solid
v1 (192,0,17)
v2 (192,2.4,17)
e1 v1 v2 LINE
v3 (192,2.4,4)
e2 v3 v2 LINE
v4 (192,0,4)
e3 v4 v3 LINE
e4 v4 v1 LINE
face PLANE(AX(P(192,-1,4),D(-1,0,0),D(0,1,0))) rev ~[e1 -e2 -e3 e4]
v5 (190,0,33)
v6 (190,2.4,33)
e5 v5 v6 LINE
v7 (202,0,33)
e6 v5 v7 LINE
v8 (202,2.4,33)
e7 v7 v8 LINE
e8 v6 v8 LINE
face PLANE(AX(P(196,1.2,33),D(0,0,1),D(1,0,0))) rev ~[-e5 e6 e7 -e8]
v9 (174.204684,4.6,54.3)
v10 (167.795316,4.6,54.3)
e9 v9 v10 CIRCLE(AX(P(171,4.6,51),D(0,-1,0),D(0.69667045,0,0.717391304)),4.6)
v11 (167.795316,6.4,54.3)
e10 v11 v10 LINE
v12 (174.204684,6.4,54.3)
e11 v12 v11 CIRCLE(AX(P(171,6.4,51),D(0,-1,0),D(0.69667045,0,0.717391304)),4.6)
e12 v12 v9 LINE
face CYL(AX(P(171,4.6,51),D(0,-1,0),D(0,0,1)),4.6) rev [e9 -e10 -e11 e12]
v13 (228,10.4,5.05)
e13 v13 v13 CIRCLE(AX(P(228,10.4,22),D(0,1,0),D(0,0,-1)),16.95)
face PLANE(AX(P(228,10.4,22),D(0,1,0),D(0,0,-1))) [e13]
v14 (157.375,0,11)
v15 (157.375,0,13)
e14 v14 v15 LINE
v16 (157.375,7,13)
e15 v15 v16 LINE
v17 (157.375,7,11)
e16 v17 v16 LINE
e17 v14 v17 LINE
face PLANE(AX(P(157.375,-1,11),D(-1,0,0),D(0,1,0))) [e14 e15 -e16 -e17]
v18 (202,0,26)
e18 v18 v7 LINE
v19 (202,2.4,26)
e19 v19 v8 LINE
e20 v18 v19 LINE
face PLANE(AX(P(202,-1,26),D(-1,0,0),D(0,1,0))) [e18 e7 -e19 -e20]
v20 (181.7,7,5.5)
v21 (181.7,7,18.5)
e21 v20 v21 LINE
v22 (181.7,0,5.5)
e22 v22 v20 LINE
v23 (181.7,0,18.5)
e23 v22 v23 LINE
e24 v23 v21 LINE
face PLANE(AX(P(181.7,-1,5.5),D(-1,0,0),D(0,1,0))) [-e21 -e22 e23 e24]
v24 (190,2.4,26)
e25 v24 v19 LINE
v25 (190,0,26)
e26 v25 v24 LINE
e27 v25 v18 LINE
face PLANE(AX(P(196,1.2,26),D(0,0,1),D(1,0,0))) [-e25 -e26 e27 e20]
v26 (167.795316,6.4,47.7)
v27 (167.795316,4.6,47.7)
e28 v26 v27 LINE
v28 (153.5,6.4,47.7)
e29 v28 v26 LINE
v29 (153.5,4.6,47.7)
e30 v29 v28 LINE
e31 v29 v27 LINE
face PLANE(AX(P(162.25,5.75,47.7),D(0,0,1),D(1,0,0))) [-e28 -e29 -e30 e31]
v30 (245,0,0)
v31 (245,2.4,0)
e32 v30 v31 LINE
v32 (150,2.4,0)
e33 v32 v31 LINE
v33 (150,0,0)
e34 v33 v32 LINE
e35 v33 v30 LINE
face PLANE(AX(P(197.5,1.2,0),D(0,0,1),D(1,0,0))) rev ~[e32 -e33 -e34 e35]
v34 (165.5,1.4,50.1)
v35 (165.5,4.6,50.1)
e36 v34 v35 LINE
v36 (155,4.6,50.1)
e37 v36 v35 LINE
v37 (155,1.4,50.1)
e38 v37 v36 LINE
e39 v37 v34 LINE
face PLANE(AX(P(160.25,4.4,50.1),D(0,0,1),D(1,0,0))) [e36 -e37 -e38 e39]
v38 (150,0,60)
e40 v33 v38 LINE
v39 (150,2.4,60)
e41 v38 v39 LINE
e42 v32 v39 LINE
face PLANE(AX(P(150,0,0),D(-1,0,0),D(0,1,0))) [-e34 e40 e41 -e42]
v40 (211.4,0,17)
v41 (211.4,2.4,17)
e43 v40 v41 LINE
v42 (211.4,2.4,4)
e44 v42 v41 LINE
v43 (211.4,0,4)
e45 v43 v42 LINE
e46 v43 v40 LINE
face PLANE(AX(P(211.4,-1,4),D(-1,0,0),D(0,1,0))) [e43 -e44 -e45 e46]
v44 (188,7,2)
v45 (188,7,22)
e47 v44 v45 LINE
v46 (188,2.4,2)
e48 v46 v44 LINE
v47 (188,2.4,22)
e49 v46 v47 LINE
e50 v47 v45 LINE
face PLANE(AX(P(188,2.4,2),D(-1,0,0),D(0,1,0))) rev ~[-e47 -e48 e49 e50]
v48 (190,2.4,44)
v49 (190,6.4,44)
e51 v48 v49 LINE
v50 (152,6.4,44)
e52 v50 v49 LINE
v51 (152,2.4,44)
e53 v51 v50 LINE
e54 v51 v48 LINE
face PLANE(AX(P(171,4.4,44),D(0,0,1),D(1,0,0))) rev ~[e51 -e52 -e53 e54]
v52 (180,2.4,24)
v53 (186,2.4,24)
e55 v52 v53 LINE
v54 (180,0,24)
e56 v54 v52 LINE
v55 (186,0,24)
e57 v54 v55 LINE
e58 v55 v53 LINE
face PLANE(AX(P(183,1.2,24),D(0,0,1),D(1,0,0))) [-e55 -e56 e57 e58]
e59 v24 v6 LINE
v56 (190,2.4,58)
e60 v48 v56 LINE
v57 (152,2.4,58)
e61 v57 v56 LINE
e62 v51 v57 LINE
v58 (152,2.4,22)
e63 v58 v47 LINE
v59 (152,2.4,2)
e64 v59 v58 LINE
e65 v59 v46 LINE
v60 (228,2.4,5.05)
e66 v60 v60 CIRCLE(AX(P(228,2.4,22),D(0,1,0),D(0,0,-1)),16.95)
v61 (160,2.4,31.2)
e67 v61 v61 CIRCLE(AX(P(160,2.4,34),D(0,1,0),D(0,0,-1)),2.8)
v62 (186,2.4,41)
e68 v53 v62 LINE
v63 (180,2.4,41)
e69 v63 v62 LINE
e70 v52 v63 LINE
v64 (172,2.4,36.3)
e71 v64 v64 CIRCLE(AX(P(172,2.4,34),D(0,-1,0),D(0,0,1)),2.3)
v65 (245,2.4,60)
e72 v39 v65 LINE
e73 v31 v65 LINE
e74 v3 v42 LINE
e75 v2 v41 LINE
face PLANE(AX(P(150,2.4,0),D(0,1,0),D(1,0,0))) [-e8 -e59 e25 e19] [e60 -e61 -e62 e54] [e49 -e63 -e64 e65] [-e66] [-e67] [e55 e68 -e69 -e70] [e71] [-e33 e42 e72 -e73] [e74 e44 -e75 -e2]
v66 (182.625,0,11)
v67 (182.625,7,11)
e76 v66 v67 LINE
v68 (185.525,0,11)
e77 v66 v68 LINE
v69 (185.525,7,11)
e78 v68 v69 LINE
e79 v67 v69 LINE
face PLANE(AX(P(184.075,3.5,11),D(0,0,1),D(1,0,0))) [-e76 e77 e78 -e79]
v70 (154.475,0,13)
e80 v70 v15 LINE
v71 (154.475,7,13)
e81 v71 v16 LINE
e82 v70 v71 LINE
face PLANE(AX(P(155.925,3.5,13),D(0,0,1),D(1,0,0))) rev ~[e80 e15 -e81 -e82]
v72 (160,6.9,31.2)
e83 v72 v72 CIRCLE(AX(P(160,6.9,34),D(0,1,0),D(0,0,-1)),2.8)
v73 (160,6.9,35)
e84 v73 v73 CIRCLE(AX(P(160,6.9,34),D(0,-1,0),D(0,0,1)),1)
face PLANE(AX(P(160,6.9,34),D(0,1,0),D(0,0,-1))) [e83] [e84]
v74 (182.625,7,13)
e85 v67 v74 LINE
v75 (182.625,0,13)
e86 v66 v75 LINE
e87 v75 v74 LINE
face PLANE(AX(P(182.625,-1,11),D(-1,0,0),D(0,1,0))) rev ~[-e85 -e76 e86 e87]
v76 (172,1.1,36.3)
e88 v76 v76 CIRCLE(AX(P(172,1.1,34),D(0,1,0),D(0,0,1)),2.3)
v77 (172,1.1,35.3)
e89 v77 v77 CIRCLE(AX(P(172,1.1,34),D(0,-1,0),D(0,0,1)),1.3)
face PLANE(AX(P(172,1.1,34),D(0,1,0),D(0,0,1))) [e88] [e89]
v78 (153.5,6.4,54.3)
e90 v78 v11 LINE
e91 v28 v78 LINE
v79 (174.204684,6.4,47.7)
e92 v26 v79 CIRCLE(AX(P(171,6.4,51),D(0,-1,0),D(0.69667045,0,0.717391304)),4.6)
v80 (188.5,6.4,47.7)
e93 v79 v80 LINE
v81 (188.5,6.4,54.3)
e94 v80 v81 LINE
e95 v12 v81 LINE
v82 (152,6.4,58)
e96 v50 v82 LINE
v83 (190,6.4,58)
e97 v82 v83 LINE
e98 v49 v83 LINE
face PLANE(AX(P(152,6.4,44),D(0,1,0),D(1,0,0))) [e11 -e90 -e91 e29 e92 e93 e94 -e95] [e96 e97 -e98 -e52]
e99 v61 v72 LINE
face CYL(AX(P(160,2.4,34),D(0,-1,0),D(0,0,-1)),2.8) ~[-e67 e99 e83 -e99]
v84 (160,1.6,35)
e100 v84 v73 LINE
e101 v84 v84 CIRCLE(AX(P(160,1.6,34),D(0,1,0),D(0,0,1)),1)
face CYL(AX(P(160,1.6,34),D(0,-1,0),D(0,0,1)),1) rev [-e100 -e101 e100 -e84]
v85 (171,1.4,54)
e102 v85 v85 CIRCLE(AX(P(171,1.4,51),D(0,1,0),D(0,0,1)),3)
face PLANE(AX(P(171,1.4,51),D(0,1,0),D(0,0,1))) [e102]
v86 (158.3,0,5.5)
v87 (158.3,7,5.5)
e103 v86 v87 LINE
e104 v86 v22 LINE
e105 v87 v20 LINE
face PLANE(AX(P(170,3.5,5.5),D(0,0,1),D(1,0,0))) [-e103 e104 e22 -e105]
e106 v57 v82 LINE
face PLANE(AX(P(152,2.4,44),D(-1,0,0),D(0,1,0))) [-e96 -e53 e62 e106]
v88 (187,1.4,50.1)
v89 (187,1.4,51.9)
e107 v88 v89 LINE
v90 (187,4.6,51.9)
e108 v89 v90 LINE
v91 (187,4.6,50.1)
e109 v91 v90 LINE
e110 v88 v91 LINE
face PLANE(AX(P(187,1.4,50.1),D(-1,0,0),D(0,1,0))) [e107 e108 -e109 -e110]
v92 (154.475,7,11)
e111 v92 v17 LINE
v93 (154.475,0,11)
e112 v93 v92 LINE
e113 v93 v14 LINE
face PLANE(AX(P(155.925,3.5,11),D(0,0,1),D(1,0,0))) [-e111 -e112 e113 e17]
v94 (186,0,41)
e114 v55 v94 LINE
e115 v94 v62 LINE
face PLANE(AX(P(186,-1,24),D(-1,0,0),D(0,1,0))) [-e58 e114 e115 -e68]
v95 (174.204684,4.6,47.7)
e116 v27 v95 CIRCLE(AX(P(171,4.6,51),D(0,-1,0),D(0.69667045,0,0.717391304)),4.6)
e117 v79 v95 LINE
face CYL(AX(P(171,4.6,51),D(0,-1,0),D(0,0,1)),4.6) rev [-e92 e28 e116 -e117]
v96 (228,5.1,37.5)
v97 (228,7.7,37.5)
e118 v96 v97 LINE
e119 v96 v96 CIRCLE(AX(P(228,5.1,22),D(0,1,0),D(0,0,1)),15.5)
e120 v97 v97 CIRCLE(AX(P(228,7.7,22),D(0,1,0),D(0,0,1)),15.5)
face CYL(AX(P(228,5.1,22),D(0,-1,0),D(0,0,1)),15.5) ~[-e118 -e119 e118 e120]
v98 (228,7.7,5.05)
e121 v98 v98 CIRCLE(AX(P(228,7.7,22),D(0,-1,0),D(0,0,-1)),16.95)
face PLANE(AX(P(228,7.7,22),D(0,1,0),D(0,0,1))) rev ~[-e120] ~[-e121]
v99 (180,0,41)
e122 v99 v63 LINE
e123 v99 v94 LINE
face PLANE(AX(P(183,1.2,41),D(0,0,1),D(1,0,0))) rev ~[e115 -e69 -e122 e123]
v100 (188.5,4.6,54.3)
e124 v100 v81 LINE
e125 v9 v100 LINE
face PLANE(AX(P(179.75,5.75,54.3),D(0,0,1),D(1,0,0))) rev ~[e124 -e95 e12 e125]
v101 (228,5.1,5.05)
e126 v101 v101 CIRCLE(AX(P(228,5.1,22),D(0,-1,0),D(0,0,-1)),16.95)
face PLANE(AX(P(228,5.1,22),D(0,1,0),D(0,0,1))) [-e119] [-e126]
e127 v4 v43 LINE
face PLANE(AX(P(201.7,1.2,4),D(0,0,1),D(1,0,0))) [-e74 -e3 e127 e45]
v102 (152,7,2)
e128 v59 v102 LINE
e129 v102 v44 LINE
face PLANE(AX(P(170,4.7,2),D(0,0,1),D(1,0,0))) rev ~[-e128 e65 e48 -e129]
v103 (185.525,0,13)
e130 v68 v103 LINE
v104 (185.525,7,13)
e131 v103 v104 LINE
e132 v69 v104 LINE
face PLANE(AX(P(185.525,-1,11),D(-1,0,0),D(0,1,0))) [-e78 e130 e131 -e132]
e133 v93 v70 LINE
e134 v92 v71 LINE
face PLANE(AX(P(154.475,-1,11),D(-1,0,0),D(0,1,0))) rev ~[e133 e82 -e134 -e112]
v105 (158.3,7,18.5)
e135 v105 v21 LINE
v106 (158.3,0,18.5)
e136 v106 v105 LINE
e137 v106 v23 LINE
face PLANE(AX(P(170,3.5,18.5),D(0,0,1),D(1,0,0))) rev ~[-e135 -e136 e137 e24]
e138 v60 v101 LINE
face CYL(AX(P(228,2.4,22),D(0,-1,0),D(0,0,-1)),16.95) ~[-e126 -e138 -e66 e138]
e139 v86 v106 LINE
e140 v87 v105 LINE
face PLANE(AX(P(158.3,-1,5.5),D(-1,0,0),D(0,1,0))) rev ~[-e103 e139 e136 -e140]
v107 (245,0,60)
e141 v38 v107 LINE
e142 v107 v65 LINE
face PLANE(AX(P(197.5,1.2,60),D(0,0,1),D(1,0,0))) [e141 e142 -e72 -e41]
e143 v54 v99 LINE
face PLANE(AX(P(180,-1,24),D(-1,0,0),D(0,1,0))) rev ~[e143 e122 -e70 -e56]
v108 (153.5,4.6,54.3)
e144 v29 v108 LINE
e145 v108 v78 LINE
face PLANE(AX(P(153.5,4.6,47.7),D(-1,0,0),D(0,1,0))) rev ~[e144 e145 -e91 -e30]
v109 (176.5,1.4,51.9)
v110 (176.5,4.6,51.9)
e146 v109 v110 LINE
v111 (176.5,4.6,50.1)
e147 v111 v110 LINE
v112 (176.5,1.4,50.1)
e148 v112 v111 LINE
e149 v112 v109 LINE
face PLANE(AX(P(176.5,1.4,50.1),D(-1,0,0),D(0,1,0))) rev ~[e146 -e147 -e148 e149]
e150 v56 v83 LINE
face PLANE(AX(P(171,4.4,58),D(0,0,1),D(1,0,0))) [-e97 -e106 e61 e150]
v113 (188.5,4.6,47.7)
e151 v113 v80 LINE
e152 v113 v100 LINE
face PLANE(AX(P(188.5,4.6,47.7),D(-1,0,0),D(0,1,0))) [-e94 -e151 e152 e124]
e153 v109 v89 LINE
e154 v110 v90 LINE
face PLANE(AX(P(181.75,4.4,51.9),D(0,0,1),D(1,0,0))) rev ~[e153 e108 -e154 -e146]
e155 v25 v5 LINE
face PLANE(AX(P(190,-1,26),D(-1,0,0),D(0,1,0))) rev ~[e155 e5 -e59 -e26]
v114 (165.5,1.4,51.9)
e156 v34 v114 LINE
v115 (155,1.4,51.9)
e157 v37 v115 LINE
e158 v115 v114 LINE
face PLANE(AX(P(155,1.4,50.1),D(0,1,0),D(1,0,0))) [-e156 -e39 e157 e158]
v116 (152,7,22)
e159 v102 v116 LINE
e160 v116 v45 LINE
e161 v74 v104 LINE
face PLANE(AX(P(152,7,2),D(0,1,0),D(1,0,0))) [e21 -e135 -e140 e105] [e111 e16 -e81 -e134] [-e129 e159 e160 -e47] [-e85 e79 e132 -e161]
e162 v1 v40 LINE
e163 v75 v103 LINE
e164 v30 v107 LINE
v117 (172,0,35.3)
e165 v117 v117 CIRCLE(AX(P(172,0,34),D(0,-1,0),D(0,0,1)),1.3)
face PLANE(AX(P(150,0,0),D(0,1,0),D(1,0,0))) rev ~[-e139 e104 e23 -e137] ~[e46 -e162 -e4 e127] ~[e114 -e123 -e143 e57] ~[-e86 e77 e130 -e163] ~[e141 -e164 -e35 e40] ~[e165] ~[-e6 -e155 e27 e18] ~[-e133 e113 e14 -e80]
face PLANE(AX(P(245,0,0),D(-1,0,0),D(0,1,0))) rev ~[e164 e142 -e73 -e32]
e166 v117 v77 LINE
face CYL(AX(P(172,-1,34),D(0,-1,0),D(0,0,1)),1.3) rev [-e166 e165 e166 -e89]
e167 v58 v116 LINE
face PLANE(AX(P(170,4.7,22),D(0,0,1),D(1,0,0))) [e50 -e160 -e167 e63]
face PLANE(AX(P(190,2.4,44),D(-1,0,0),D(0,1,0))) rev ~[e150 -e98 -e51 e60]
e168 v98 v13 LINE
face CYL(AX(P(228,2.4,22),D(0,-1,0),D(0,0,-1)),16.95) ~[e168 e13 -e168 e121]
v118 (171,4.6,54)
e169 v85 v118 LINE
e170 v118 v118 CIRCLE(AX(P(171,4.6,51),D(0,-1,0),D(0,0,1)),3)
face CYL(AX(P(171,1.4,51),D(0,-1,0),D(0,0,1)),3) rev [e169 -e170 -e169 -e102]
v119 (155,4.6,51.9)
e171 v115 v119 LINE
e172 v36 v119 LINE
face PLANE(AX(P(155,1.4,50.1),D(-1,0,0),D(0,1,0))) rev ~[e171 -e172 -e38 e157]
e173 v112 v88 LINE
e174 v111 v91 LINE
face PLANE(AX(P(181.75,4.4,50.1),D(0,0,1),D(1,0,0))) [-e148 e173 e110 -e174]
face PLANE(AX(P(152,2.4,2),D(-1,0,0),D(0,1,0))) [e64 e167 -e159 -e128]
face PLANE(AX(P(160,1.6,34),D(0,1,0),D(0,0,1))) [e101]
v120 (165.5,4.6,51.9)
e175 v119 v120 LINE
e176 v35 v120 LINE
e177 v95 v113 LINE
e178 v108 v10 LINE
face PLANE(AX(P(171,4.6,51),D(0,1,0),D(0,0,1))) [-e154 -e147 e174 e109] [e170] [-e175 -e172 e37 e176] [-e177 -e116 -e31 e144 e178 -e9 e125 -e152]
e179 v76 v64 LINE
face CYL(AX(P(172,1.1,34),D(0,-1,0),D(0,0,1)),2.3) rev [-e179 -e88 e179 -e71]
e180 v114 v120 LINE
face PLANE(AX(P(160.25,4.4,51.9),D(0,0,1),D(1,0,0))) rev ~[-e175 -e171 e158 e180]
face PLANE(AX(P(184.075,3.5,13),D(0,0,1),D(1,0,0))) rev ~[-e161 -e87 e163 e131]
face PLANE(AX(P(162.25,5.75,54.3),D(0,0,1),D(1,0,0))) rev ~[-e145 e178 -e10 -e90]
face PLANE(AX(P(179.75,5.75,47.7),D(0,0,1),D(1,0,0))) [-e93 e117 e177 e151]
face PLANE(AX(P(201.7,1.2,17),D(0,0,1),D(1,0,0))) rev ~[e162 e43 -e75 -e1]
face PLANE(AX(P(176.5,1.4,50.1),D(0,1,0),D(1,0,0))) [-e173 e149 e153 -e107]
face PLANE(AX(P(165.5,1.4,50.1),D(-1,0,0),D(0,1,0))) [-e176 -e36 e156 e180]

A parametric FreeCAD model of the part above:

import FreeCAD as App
import Part
import Sketcher


def add_polygon(sketch, points):
    """Adds a closed chain of lines whose ends are joined by coincident constraints."""
    first, n = sketch.GeometryCount, len(points)
    for a, b in zip(points, points[1:] + points[:1]):
        sketch.addGeometry(Part.LineSegment(App.Vector(*a, 0), App.Vector(*b, 0)), False)
    for i in range(n):
        sketch.addConstraint(Sketcher.Constraint("Coincident", first + i, 2, first + (i + 1) % n, 1))

doc = App.newDocument("Part")
body = doc.addObject("PartDesign::Body", "Body")

sketch1 = doc.addObject("Sketcher::SketchObject", "Sketch")
body.addObject(sketch1)
sketch1.AttachmentSupport = (doc.XY_Plane, [""])
sketch1.MapMode = "FlatFace"
add_polygon(sketch1, [(150, 2.4), (150, 0), (245, 0), (245, 2.4)])
sketch1.addConstraint(Sketcher.Constraint("Vertical", 0))
sketch1.addConstraint(Sketcher.Constraint("Horizontal", 1))
sketch1.addConstraint(Sketcher.Constraint("Vertical", 2))
sketch1.addConstraint(Sketcher.Constraint("Horizontal", 3))
sketch1.addConstraint(Sketcher.Constraint("PointOnObject", 0, 2, -1))
sketch1.addConstraint(Sketcher.Constraint("DistanceX", 1, 1, 1, 2, 95.0))
sketch1.addConstraint(Sketcher.Constraint("DistanceY", 0, 2, 0, 1, 2.4))
sketch1.addConstraint(Sketcher.Constraint("DistanceX", -1, 1, 0, 2, 150.0))
pad1 = doc.addObject("PartDesign::Pad", "Pad")
body.addObject(pad1)
pad1.Profile = sketch1
pad1.Length = 60

sketch2 = doc.addObject("Sketcher::SketchObject", "Sketch001")
body.addObject(sketch2)
sketch2.AttachmentSupport = (doc.XY_Plane, [""])
sketch2.MapMode = "FlatFace"
sketch2.AttachmentOffset = App.Placement(App.Vector(0, 0, 2), App.Rotation())
add_polygon(sketch2, [(152, 7), (152, 2.4), (188, 2.4), (188, 7)])
sketch2.addConstraint(Sketcher.Constraint("Vertical", 0))
sketch2.addConstraint(Sketcher.Constraint("Horizontal", 1))
sketch2.addConstraint(Sketcher.Constraint("Vertical", 2))
sketch2.addConstraint(Sketcher.Constraint("Horizontal", 3))
sketch2.addConstraint(Sketcher.Constraint("DistanceX", 1, 1, 1, 2, 36.0))
sketch2.addConstraint(Sketcher.Constraint("DistanceY", 0, 2, 0, 1, 4.6))
sketch2.addConstraint(Sketcher.Constraint("DistanceX", -1, 1, 0, 2, 152.0))
sketch2.addConstraint(Sketcher.Constraint("DistanceY", -1, 1, 2, 2, 7.0))
pad2 = doc.addObject("PartDesign::Pad", "Pad001")
body.addObject(pad2)
pad2.Profile = sketch2
pad2.Length = 20
body2 = doc.addObject("PartDesign::Body", "Body001")

sketch3 = doc.addObject("Sketcher::SketchObject", "Sketch002")
body2.addObject(sketch3)
sketch3.AttachmentSupport = (doc.getObject("XY_Plane001"), [""])
sketch3.MapMode = "FlatFace"
sketch3.AttachmentOffset = App.Placement(App.Vector(0, 0, 5.5), App.Rotation())
add_polygon(sketch3, [(158, 8), (158, -1), (182, -1), (182, 8)])
sketch3.addConstraint(Sketcher.Constraint("Vertical", 0))
sketch3.addConstraint(Sketcher.Constraint("Horizontal", 1))
sketch3.addConstraint(Sketcher.Constraint("Vertical", 2))
sketch3.addConstraint(Sketcher.Constraint("Horizontal", 3))
sketch3.addConstraint(Sketcher.Constraint("DistanceY", 0, 2, 0, 1, 9.0))
sketch3.addConstraint(Sketcher.Constraint("DistanceX", 1, 1, 1, 2, 23.4))
sketch3.addConstraint(Sketcher.Constraint("DistanceY", 0, 2, -1, 1, 1.0))
sketch3.addConstraint(Sketcher.Constraint("DistanceX", -1, 1, 0, 2, 158.3))
pad3 = doc.addObject("PartDesign::Pad", "Pad002")
body2.addObject(pad3)
pad3.Profile = sketch3
pad3.Length = 13
doc.recompute()

boolean = doc.addObject("PartDesign::Boolean", "Boolean")
body.addObject(boolean)
boolean.Type = "Cut"
boolean.addObjects([body2])
body3 = doc.addObject("PartDesign::Body", "Body002")

sketch4 = doc.addObject("Sketcher::SketchObject", "Sketch003")
body3.addObject(sketch4)
sketch4.AttachmentSupport = (doc.getObject("XY_Plane002"), [""])
sketch4.MapMode = "FlatFace"
sketch4.AttachmentOffset = App.Placement(App.Vector(0, 0, 11), App.Rotation())
add_polygon(sketch4, [(154.5, 8), (154.5, -1), (157.4, -1), (157.4, 8)])
sketch4.addConstraint(Sketcher.Constraint("Vertical", 0))
sketch4.addConstraint(Sketcher.Constraint("Horizontal", 1))
sketch4.addConstraint(Sketcher.Constraint("Vertical", 2))
sketch4.addConstraint(Sketcher.Constraint("Horizontal", 3))
sketch4.addConstraint(Sketcher.Constraint("DistanceY", 0, 2, 0, 1, 9.0))
sketch4.addConstraint(Sketcher.Constraint("DistanceX", 1, 1, 1, 2, 2.9))
sketch4.addConstraint(Sketcher.Constraint("DistanceY", 0, 2, -1, 1, 1.0))
sketch4.addConstraint(Sketcher.Constraint("DistanceX", -1, 1, 0, 2, 154.475))
pad4 = doc.addObject("PartDesign::Pad", "Pad003")
body3.addObject(pad4)
pad4.Profile = sketch4
pad4.Length = 2
doc.recompute()

boolean2 = doc.addObject("PartDesign::Boolean", "Boolean001")
body.addObject(boolean2)
boolean2.Type = "Cut"
boolean2.addObjects([body3])
body4 = doc.addObject("PartDesign::Body", "Body003")

sketch5 = doc.addObject("Sketcher::SketchObject", "Sketch004")
body4.addObject(sketch5)
sketch5.AttachmentSupport = (doc.getObject("XY_Plane003"), [""])
sketch5.MapMode = "FlatFace"
sketch5.AttachmentOffset = App.Placement(App.Vector(0, 0, 11), App.Rotation())
add_polygon(sketch5, [(182.6, 8), (182.6, -1), (185.5, -1), (185.5, 8)])
sketch5.addConstraint(Sketcher.Constraint("Vertical", 0))
sketch5.addConstraint(Sketcher.Constraint("Horizontal", 1))
sketch5.addConstraint(Sketcher.Constraint("Vertical", 2))
sketch5.addConstraint(Sketcher.Constraint("Horizontal", 3))
sketch5.addConstraint(Sketcher.Constraint("DistanceY", 0, 2, 0, 1, 9.0))
sketch5.addConstraint(Sketcher.Constraint("DistanceX", 1, 1, 1, 2, 2.9))
sketch5.addConstraint(Sketcher.Constraint("DistanceY", 0, 2, -1, 1, 1.0))
sketch5.addConstraint(Sketcher.Constraint("DistanceX", -1, 1, 0, 2, 182.625))
pad5 = doc.addObject("PartDesign::Pad", "Pad004")
body4.addObject(pad5)
pad5.Profile = sketch5
pad5.Length = 2
doc.recompute()

boolean3 = doc.addObject("PartDesign::Boolean", "Boolean002")
body.addObject(boolean3)
boolean3.Type = "Cut"
boolean3.addObjects([body4])
body5 = doc.addObject("PartDesign::Body", "Body004")

sketch6 = doc.addObject("Sketcher::SketchObject", "Sketch005")
body5.addObject(sketch6)
sketch6.AttachmentSupport = (doc.getObject("XY_Plane004"), [""])
sketch6.MapMode = "FlatFace"
sketch6.AttachmentOffset = App.Placement(App.Vector(0, 0, 4), App.Rotation())
add_polygon(sketch6, [(192, 3.4), (192, -1), (211.4, -1), (211.4, 3.4)])
sketch6.addConstraint(Sketcher.Constraint("Vertical", 0))
sketch6.addConstraint(Sketcher.Constraint("Horizontal", 1))
sketch6.addConstraint(Sketcher.Constraint("Vertical", 2))
sketch6.addConstraint(Sketcher.Constraint("Horizontal", 3))
sketch6.addConstraint(Sketcher.Constraint("DistanceX", 1, 1, 1, 2, 19.4))
sketch6.addConstraint(Sketcher.Constraint("DistanceY", 0, 2, 0, 1, 4.4))
sketch6.addConstraint(Sketcher.Constraint("DistanceX", -1, 1, 0, 2, 192.0))
sketch6.addConstraint(Sketcher.Constraint("DistanceY", 0, 2, -1, 1, 1.0))
pad6 = doc.addObject("PartDesign::Pad", "Pad005")
body5.addObject(pad6)
pad6.Profile = sketch6
pad6.Length = 13
doc.recompute()

boolean4 = doc.addObject("PartDesign::Boolean", "Boolean003")
body.addObject(boolean4)
boolean4.Type = "Cut"
boolean4.addObjects([body5])

sketch7 = doc.addObject("Sketcher::SketchObject", "Sketch006")
body.addObject(sketch7)
sketch7.AttachmentSupport = (doc.XZ_Plane, [""])
sketch7.MapMode = "FlatFace"
sketch7.AttachmentOffset = App.Placement(App.Vector(0, 0, -2.4), App.Rotation())
sketch7.addGeometry(Part.Circle(App.Vector(160, 34, 0), App.Vector(0, 0, 1), 2.8), False)
sketch7.addConstraint(Sketcher.Constraint("Diameter", 0, 5.6))
sketch7.addConstraint(Sketcher.Constraint("DistanceX", -1, 1, 0, 3, 160.0))
sketch7.addConstraint(Sketcher.Constraint("DistanceY", -1, 1, 0, 3, 34.0))
pad7 = doc.addObject("PartDesign::Pad", "Pad006")
body.addObject(pad7)
pad7.Profile = sketch7
pad7.Length = 4.5
pad7.Reversed = True
body6 = doc.addObject("PartDesign::Body", "Body005")

sketch8 = doc.addObject("Sketcher::SketchObject", "Sketch007")
body6.addObject(sketch8)
sketch8.AttachmentSupport = (doc.getObject("XZ_Plane005"), [""])
sketch8.MapMode = "FlatFace"
sketch8.AttachmentOffset = App.Placement(App.Vector(0, 0, -1.6), App.Rotation())
sketch8.addGeometry(Part.Circle(App.Vector(160, 34, 0), App.Vector(0, 0, 1), 1), False)
sketch8.addConstraint(Sketcher.Constraint("Diameter", 0, 2.0))
sketch8.addConstraint(Sketcher.Constraint("DistanceX", -1, 1, 0, 3, 160.0))
sketch8.addConstraint(Sketcher.Constraint("DistanceY", -1, 1, 0, 3, 34.0))
pad8 = doc.addObject("PartDesign::Pad", "Pad007")
body6.addObject(pad8)
pad8.Profile = sketch8
pad8.Length = 6.3
pad8.Reversed = True
doc.recompute()

boolean5 = doc.addObject("PartDesign::Boolean", "Boolean004")
body.addObject(boolean5)
boolean5.Type = "Cut"
boolean5.addObjects([body6])
body7 = doc.addObject("PartDesign::Body", "Body006")

sketch9 = doc.addObject("Sketcher::SketchObject", "Sketch008")
body7.addObject(sketch9)
sketch9.AttachmentSupport = (doc.getObject("XZ_Plane006"), [""])
sketch9.MapMode = "FlatFace"
sketch9.AttachmentOffset = App.Placement(App.Vector(0, 0, 1), App.Rotation())
sketch9.addGeometry(Part.Circle(App.Vector(172, 34, 0), App.Vector(0, 0, 1), 1.3), False)
sketch9.addConstraint(Sketcher.Constraint("Diameter", 0, 2.6))
sketch9.addConstraint(Sketcher.Constraint("DistanceX", -1, 1, 0, 3, 172.0))
sketch9.addConstraint(Sketcher.Constraint("DistanceY", -1, 1, 0, 3, 34.0))
pad9 = doc.addObject("PartDesign::Pad", "Pad008")
body7.addObject(pad9)
pad9.Profile = sketch9
pad9.Length = 4.4
pad9.Reversed = True
doc.recompute()

boolean6 = doc.addObject("PartDesign::Boolean", "Boolean005")
body.addObject(boolean6)
boolean6.Type = "Cut"
boolean6.addObjects([body7])
body8 = doc.addObject("PartDesign::Body", "Body007")

sketch10 = doc.addObject("Sketcher::SketchObject", "Sketch009")
body8.addObject(sketch10)
sketch10.AttachmentSupport = (doc.getObject("XZ_Plane007"), [""])
sketch10.MapMode = "FlatFace"
sketch10.AttachmentOffset = App.Placement(App.Vector(0, 0, -1.1), App.Rotation())
sketch10.addGeometry(Part.Circle(App.Vector(172, 34, 0), App.Vector(0, 0, 1), 2.3), False)
sketch10.addConstraint(Sketcher.Constraint("Diameter", 0, 4.6))
sketch10.addConstraint(Sketcher.Constraint("DistanceX", -1, 1, 0, 3, 172.0))
sketch10.addConstraint(Sketcher.Constraint("DistanceY", -1, 1, 0, 3, 34.0))
pad10 = doc.addObject("PartDesign::Pad", "Pad009")
body8.addObject(pad10)
pad10.Profile = sketch10
pad10.Length = 2.3
pad10.Reversed = True
doc.recompute()

boolean7 = doc.addObject("PartDesign::Boolean", "Boolean006")
body.addObject(boolean7)
boolean7.Type = "Cut"
boolean7.addObjects([body8])
body9 = doc.addObject("PartDesign::Body", "Body008")

sketch11 = doc.addObject("Sketcher::SketchObject", "Sketch010")
body9.addObject(sketch11)
sketch11.AttachmentSupport = (doc.getObject("XY_Plane008"), [""])
sketch11.MapMode = "FlatFace"
sketch11.AttachmentOffset = App.Placement(App.Vector(0, 0, 24), App.Rotation())
add_polygon(sketch11, [(180, 3.4), (180, -1), (186, -1), (186, 3.4)])
sketch11.addConstraint(Sketcher.Constraint("Vertical", 0))
sketch11.addConstraint(Sketcher.Constraint("Horizontal", 1))
sketch11.addConstraint(Sketcher.Constraint("Vertical", 2))
sketch11.addConstraint(Sketcher.Constraint("Horizontal", 3))
sketch11.addConstraint(Sketcher.Constraint("DistanceX", 1, 1, 1, 2, 6.0))
sketch11.addConstraint(Sketcher.Constraint("DistanceY", 0, 2, 0, 1, 4.4))
sketch11.addConstraint(Sketcher.Constraint("DistanceX", -1, 1, 0, 2, 180.0))
sketch11.addConstraint(Sketcher.Constraint("DistanceY", 0, 2, -1, 1, 1.0))
pad11 = doc.addObject("PartDesign::Pad", "Pad010")
body9.addObject(pad11)
pad11.Profile = sketch11
pad11.Length = 17
doc.recompute()

boolean8 = doc.addObject("PartDesign::Boolean", "Boolean007")
body.addObject(boolean8)
boolean8.Type = "Cut"
boolean8.addObjects([body9])
body10 = doc.addObject("PartDesign::Body", "Body009")

sketch12 = doc.addObject("Sketcher::SketchObject", "Sketch011")
body10.addObject(sketch12)
sketch12.AttachmentSupport = (doc.getObject("XY_Plane009"), [""])
sketch12.MapMode = "FlatFace"
sketch12.AttachmentOffset = App.Placement(App.Vector(0, 0, 26), App.Rotation())
add_polygon(sketch12, [(190, 3.4), (190, -1), (202, -1), (202, 3.4)])
sketch12.addConstraint(Sketcher.Constraint("Vertical", 0))
sketch12.addConstraint(Sketcher.Constraint("Horizontal", 1))
sketch12.addConstraint(Sketcher.Constraint("Vertical", 2))
sketch12.addConstraint(Sketcher.Constraint("Horizontal", 3))
sketch12.addConstraint(Sketcher.Constraint("DistanceX", 1, 1, 1, 2, 12.0))
sketch12.addConstraint(Sketcher.Constraint("DistanceY", 0, 2, 0, 1, 4.4))
sketch12.addConstraint(Sketcher.Constraint("DistanceX", -1, 1, 0, 2, 190.0))
sketch12.addConstraint(Sketcher.Constraint("DistanceY", 0, 2, -1, 1, 1.0))
pad12 = doc.addObject("PartDesign::Pad", "Pad011")
body10.addObject(pad12)
pad12.Profile = sketch12
pad12.Length = 7
doc.recompute()

boolean9 = doc.addObject("PartDesign::Boolean", "Boolean008")
body.addObject(boolean9)
boolean9.Type = "Cut"
boolean9.addObjects([body10])

sketch13 = doc.addObject("Sketcher::SketchObject", "Sketch012")
body.addObject(sketch13)
sketch13.AttachmentSupport = (doc.XZ_Plane, [""])
sketch13.MapMode = "FlatFace"
sketch13.AttachmentOffset = App.Placement(App.Vector(0, 0, -2.4), App.Rotation())
sketch13.addGeometry(Part.Circle(App.Vector(228, 22, 0), App.Vector(0, 0, 1), 17), False)
sketch13.addConstraint(Sketcher.Constraint("Diameter", 0, 33.9))
sketch13.addConstraint(Sketcher.Constraint("DistanceX", -1, 1, 0, 3, 228.0))
sketch13.addConstraint(Sketcher.Constraint("DistanceY", -1, 1, 0, 3, 22.0))
pad13 = doc.addObject("PartDesign::Pad", "Pad012")
body.addObject(pad13)
pad13.Profile = sketch13
pad13.Length = 8
pad13.Reversed = True
body11 = doc.addObject("PartDesign::Body", "Body010")

sketch14 = doc.addObject("Sketcher::SketchObject", "Sketch013")
body11.addObject(sketch14)
sketch14.AttachmentSupport = (doc.getObject("XZ_Plane010"), [""])
sketch14.MapMode = "FlatFace"
sketch14.AttachmentOffset = App.Placement(App.Vector(0, 0, -5.1), App.Rotation())
sketch14.addGeometry(Part.Circle(App.Vector(228, 22, 0), App.Vector(0, 0, 1), 20), False)
sketch14.addConstraint(Sketcher.Constraint("Diameter", 0, 40.0))
sketch14.addConstraint(Sketcher.Constraint("DistanceX", -1, 1, 0, 3, 228.0))
sketch14.addConstraint(Sketcher.Constraint("DistanceY", -1, 1, 0, 3, 22.0))
pad14 = doc.addObject("PartDesign::Pad", "Pad013")
body11.addObject(pad14)
pad14.Profile = sketch14
pad14.Length = 2.6
pad14.Reversed = True
body.AllowCompound = True
doc.recompute()

boolean10 = doc.addObject("PartDesign::Boolean", "Boolean009")
body.addObject(boolean10)
boolean10.Type = "Cut"
boolean10.addObjects([body11])

sketch15 = doc.addObject("Sketcher::SketchObject", "Sketch014")
body.addObject(sketch15)
sketch15.AttachmentSupport = (doc.XZ_Plane, [""])
sketch15.MapMode = "FlatFace"
sketch15.AttachmentOffset = App.Placement(App.Vector(0, 0, -5.1), App.Rotation())
sketch15.addGeometry(Part.Circle(App.Vector(228, 22, 0), App.Vector(0, 0, 1), 16), False)
sketch15.addConstraint(Sketcher.Constraint("Diameter", 0, 31.0))
sketch15.addConstraint(Sketcher.Constraint("DistanceX", -1, 1, 0, 3, 228.0))
sketch15.addConstraint(Sketcher.Constraint("DistanceY", -1, 1, 0, 3, 22.0))
pad15 = doc.addObject("PartDesign::Pad", "Pad014")
body.addObject(pad15)
pad15.Profile = sketch15
pad15.Length = 2.6
pad15.Reversed = True

sketch16 = doc.addObject("Sketcher::SketchObject", "Sketch015")
body.addObject(sketch16)
sketch16.AttachmentSupport = (doc.XY_Plane, [""])
sketch16.MapMode = "FlatFace"
sketch16.AttachmentOffset = App.Placement(App.Vector(0, 0, 44), App.Rotation())
add_polygon(sketch16, [(152, 6.4), (152, 2.4), (190, 2.4), (190, 6.4)])
sketch16.addConstraint(Sketcher.Constraint("Vertical", 0))
sketch16.addConstraint(Sketcher.Constraint("Horizontal", 1))
sketch16.addConstraint(Sketcher.Constraint("Vertical", 2))
sketch16.addConstraint(Sketcher.Constraint("Horizontal", 3))
sketch16.addConstraint(Sketcher.Constraint("DistanceX", 1, 1, 1, 2, 38.0))
sketch16.addConstraint(Sketcher.Constraint("DistanceY", 0, 2, 0, 1, 4.0))
sketch16.addConstraint(Sketcher.Constraint("DistanceX", -1, 1, 0, 2, 152.0))
sketch16.addConstraint(Sketcher.Constraint("DistanceY", -1, 1, 0, 2, 2.4))
pad16 = doc.addObject("PartDesign::Pad", "Pad015")
body.addObject(pad16)
pad16.Profile = sketch16
pad16.Length = 14
body12 = doc.addObject("PartDesign::Body", "Body011")

sketch17 = doc.addObject("Sketcher::SketchObject", "Sketch016")
body12.addObject(sketch17)
sketch17.AttachmentSupport = (doc.getObject("XZ_Plane011"), [""])
sketch17.MapMode = "FlatFace"
sketch17.AttachmentOffset = App.Placement(App.Vector(0, 0, -4.6), App.Rotation())
sketch17.addGeometry(Part.Circle(App.Vector(171, 51, 0), App.Vector(0, 0, 1), 4.6), False)
sketch17.addConstraint(Sketcher.Constraint("Diameter", 0, 9.2))
sketch17.addConstraint(Sketcher.Constraint("DistanceX", -1, 1, 0, 3, 171.0))
sketch17.addConstraint(Sketcher.Constraint("DistanceY", -1, 1, 0, 3, 51.0))
pad17 = doc.addObject("PartDesign::Pad", "Pad016")
body12.addObject(pad17)
pad17.Profile = sketch17
pad17.Length = 2.3
pad17.Reversed = True
doc.recompute()

boolean11 = doc.addObject("PartDesign::Boolean", "Boolean010")
body.addObject(boolean11)
boolean11.Type = "Cut"
boolean11.addObjects([body12])
body13 = doc.addObject("PartDesign::Body", "Body012")

sketch18 = doc.addObject("Sketcher::SketchObject", "Sketch017")
body13.addObject(sketch18)
sketch18.AttachmentSupport = (doc.getObject("XY_Plane012"), [""])
sketch18.MapMode = "FlatFace"
sketch18.AttachmentOffset = App.Placement(App.Vector(0, 0, 47.7), App.Rotation())
add_polygon(sketch18, [(171, 6.9), (171, 4.6), (188.5, 4.6), (188.5, 6.9)])
sketch18.addConstraint(Sketcher.Constraint("Vertical", 0))
sketch18.addConstraint(Sketcher.Constraint("Horizontal", 1))
sketch18.addConstraint(Sketcher.Constraint("Vertical", 2))
sketch18.addConstraint(Sketcher.Constraint("Horizontal", 3))
sketch18.addConstraint(Sketcher.Constraint("DistanceX", 1, 1, 1, 2, 17.5))
sketch18.addConstraint(Sketcher.Constraint("DistanceY", 0, 2, 0, 1, 2.3))
sketch18.addConstraint(Sketcher.Constraint("DistanceX", -1, 1, 0, 2, 171.0))
sketch18.addConstraint(Sketcher.Constraint("DistanceY", -1, 1, 0, 2, 4.6))
pad18 = doc.addObject("PartDesign::Pad", "Pad017")
body13.addObject(pad18)
pad18.Profile = sketch18
pad18.Length = 6.6
doc.recompute()

boolean12 = doc.addObject("PartDesign::Boolean", "Boolean011")
body.addObject(boolean12)
boolean12.Type = "Cut"
boolean12.addObjects([body13])
body14 = doc.addObject("PartDesign::Body", "Body013")

sketch19 = doc.addObject("Sketcher::SketchObject", "Sketch018")
body14.addObject(sketch19)
sketch19.AttachmentSupport = (doc.getObject("XY_Plane013"), [""])
sketch19.MapMode = "FlatFace"
sketch19.AttachmentOffset = App.Placement(App.Vector(0, 0, 50.1), App.Rotation())
add_polygon(sketch19, [(176, 7), (176, 1), (187, 1), (187, 7)])
sketch19.addConstraint(Sketcher.Constraint("Vertical", 0))
sketch19.addConstraint(Sketcher.Constraint("Horizontal", 1))
sketch19.addConstraint(Sketcher.Constraint("Vertical", 2))
sketch19.addConstraint(Sketcher.Constraint("Horizontal", 3))
sketch19.addConstraint(Sketcher.Constraint("DistanceY", 0, 2, 0, 1, 6.0))
sketch19.addConstraint(Sketcher.Constraint("DistanceX", 1, 1, 1, 2, 10.5))
sketch19.addConstraint(Sketcher.Constraint("DistanceX", -1, 1, 1, 2, 187.0))
sketch19.addConstraint(Sketcher.Constraint("DistanceY", -1, 1, 0, 2, 1.4))
pad19 = doc.addObject("PartDesign::Pad", "Pad018")
body14.addObject(pad19)
pad19.Profile = sketch19
pad19.Length = 1.8
doc.recompute()

boolean13 = doc.addObject("PartDesign::Boolean", "Boolean012")
body.addObject(boolean13)
boolean13.Type = "Cut"
boolean13.addObjects([body14])
body15 = doc.addObject("PartDesign::Body", "Body014")

sketch20 = doc.addObject("Sketcher::SketchObject", "Sketch019")
body15.addObject(sketch20)
sketch20.AttachmentSupport = (doc.getObject("XY_Plane014"), [""])
sketch20.MapMode = "FlatFace"
sketch20.AttachmentOffset = App.Placement(App.Vector(0, 0, 47.7), App.Rotation())
add_polygon(sketch20, [(153.5, 6.9), (153.5, 4.6), (171, 4.6), (171, 6.9)])
sketch20.addConstraint(Sketcher.Constraint("Vertical", 0))
sketch20.addConstraint(Sketcher.Constraint("Horizontal", 1))
sketch20.addConstraint(Sketcher.Constraint("Vertical", 2))
sketch20.addConstraint(Sketcher.Constraint("Horizontal", 3))
sketch20.addConstraint(Sketcher.Constraint("DistanceX", 1, 1, 1, 2, 17.5))
sketch20.addConstraint(Sketcher.Constraint("DistanceY", 0, 2, 0, 1, 2.3))
sketch20.addConstraint(Sketcher.Constraint("DistanceX", -1, 1, 1, 2, 171.0))
sketch20.addConstraint(Sketcher.Constraint("DistanceY", -1, 1, 0, 2, 4.6))
pad20 = doc.addObject("PartDesign::Pad", "Pad019")
body15.addObject(pad20)
pad20.Profile = sketch20
pad20.Length = 6.6
doc.recompute()

boolean14 = doc.addObject("PartDesign::Boolean", "Boolean013")
body.addObject(boolean14)
boolean14.Type = "Cut"
boolean14.addObjects([body15])
body16 = doc.addObject("PartDesign::Body", "Body015")

sketch21 = doc.addObject("Sketcher::SketchObject", "Sketch020")
body16.addObject(sketch21)
sketch21.AttachmentSupport = (doc.getObject("XY_Plane015"), [""])
sketch21.MapMode = "FlatFace"
sketch21.AttachmentOffset = App.Placement(App.Vector(0, 0, 50.1), App.Rotation())
add_polygon(sketch21, [(155, 7), (155, 1), (166, 1), (166, 7)])
sketch21.addConstraint(Sketcher.Constraint("Vertical", 0))
sketch21.addConstraint(Sketcher.Constraint("Horizontal", 1))
sketch21.addConstraint(Sketcher.Constraint("Vertical", 2))
sketch21.addConstraint(Sketcher.Constraint("Horizontal", 3))
sketch21.addConstraint(Sketcher.Constraint("DistanceY", 0, 2, 0, 1, 6.0))
sketch21.addConstraint(Sketcher.Constraint("DistanceX", 1, 1, 1, 2, 10.5))
sketch21.addConstraint(Sketcher.Constraint("DistanceX", -1, 1, 0, 2, 155.0))
sketch21.addConstraint(Sketcher.Constraint("DistanceY", -1, 1, 0, 2, 1.4))
pad21 = doc.addObject("PartDesign::Pad", "Pad020")
body16.addObject(pad21)
pad21.Profile = sketch21
pad21.Length = 1.8
doc.recompute()

boolean15 = doc.addObject("PartDesign::Boolean", "Boolean014")
body.addObject(boolean15)
boolean15.Type = "Cut"
boolean15.addObjects([body16])
body17 = doc.addObject("PartDesign::Body", "Body016")

sketch22 = doc.addObject("Sketcher::SketchObject", "Sketch021")
body17.addObject(sketch22)
sketch22.AttachmentSupport = (doc.getObject("XZ_Plane016"), [""])
sketch22.MapMode = "FlatFace"
sketch22.AttachmentOffset = App.Placement(App.Vector(0, 0, -1.4), App.Rotation())
sketch22.addGeometry(Part.Circle(App.Vector(171, 51, 0), App.Vector(0, 0, 1), 3), False)
sketch22.addConstraint(Sketcher.Constraint("Diameter", 0, 6.0))
sketch22.addConstraint(Sketcher.Constraint("DistanceX", -1, 1, 0, 3, 171.0))
sketch22.addConstraint(Sketcher.Constraint("DistanceY", -1, 1, 0, 3, 51.0))
pad22 = doc.addObject("PartDesign::Pad", "Pad021")
body17.addObject(pad22)
pad22.Profile = sketch22
pad22.Length = 6
pad22.Reversed = True
doc.recompute()

boolean16 = doc.addObject("PartDesign::Boolean", "Boolean015")
body.addObject(boolean16)
boolean16.Type = "Cut"
boolean16.addObjects([body17])

doc.recompute()
